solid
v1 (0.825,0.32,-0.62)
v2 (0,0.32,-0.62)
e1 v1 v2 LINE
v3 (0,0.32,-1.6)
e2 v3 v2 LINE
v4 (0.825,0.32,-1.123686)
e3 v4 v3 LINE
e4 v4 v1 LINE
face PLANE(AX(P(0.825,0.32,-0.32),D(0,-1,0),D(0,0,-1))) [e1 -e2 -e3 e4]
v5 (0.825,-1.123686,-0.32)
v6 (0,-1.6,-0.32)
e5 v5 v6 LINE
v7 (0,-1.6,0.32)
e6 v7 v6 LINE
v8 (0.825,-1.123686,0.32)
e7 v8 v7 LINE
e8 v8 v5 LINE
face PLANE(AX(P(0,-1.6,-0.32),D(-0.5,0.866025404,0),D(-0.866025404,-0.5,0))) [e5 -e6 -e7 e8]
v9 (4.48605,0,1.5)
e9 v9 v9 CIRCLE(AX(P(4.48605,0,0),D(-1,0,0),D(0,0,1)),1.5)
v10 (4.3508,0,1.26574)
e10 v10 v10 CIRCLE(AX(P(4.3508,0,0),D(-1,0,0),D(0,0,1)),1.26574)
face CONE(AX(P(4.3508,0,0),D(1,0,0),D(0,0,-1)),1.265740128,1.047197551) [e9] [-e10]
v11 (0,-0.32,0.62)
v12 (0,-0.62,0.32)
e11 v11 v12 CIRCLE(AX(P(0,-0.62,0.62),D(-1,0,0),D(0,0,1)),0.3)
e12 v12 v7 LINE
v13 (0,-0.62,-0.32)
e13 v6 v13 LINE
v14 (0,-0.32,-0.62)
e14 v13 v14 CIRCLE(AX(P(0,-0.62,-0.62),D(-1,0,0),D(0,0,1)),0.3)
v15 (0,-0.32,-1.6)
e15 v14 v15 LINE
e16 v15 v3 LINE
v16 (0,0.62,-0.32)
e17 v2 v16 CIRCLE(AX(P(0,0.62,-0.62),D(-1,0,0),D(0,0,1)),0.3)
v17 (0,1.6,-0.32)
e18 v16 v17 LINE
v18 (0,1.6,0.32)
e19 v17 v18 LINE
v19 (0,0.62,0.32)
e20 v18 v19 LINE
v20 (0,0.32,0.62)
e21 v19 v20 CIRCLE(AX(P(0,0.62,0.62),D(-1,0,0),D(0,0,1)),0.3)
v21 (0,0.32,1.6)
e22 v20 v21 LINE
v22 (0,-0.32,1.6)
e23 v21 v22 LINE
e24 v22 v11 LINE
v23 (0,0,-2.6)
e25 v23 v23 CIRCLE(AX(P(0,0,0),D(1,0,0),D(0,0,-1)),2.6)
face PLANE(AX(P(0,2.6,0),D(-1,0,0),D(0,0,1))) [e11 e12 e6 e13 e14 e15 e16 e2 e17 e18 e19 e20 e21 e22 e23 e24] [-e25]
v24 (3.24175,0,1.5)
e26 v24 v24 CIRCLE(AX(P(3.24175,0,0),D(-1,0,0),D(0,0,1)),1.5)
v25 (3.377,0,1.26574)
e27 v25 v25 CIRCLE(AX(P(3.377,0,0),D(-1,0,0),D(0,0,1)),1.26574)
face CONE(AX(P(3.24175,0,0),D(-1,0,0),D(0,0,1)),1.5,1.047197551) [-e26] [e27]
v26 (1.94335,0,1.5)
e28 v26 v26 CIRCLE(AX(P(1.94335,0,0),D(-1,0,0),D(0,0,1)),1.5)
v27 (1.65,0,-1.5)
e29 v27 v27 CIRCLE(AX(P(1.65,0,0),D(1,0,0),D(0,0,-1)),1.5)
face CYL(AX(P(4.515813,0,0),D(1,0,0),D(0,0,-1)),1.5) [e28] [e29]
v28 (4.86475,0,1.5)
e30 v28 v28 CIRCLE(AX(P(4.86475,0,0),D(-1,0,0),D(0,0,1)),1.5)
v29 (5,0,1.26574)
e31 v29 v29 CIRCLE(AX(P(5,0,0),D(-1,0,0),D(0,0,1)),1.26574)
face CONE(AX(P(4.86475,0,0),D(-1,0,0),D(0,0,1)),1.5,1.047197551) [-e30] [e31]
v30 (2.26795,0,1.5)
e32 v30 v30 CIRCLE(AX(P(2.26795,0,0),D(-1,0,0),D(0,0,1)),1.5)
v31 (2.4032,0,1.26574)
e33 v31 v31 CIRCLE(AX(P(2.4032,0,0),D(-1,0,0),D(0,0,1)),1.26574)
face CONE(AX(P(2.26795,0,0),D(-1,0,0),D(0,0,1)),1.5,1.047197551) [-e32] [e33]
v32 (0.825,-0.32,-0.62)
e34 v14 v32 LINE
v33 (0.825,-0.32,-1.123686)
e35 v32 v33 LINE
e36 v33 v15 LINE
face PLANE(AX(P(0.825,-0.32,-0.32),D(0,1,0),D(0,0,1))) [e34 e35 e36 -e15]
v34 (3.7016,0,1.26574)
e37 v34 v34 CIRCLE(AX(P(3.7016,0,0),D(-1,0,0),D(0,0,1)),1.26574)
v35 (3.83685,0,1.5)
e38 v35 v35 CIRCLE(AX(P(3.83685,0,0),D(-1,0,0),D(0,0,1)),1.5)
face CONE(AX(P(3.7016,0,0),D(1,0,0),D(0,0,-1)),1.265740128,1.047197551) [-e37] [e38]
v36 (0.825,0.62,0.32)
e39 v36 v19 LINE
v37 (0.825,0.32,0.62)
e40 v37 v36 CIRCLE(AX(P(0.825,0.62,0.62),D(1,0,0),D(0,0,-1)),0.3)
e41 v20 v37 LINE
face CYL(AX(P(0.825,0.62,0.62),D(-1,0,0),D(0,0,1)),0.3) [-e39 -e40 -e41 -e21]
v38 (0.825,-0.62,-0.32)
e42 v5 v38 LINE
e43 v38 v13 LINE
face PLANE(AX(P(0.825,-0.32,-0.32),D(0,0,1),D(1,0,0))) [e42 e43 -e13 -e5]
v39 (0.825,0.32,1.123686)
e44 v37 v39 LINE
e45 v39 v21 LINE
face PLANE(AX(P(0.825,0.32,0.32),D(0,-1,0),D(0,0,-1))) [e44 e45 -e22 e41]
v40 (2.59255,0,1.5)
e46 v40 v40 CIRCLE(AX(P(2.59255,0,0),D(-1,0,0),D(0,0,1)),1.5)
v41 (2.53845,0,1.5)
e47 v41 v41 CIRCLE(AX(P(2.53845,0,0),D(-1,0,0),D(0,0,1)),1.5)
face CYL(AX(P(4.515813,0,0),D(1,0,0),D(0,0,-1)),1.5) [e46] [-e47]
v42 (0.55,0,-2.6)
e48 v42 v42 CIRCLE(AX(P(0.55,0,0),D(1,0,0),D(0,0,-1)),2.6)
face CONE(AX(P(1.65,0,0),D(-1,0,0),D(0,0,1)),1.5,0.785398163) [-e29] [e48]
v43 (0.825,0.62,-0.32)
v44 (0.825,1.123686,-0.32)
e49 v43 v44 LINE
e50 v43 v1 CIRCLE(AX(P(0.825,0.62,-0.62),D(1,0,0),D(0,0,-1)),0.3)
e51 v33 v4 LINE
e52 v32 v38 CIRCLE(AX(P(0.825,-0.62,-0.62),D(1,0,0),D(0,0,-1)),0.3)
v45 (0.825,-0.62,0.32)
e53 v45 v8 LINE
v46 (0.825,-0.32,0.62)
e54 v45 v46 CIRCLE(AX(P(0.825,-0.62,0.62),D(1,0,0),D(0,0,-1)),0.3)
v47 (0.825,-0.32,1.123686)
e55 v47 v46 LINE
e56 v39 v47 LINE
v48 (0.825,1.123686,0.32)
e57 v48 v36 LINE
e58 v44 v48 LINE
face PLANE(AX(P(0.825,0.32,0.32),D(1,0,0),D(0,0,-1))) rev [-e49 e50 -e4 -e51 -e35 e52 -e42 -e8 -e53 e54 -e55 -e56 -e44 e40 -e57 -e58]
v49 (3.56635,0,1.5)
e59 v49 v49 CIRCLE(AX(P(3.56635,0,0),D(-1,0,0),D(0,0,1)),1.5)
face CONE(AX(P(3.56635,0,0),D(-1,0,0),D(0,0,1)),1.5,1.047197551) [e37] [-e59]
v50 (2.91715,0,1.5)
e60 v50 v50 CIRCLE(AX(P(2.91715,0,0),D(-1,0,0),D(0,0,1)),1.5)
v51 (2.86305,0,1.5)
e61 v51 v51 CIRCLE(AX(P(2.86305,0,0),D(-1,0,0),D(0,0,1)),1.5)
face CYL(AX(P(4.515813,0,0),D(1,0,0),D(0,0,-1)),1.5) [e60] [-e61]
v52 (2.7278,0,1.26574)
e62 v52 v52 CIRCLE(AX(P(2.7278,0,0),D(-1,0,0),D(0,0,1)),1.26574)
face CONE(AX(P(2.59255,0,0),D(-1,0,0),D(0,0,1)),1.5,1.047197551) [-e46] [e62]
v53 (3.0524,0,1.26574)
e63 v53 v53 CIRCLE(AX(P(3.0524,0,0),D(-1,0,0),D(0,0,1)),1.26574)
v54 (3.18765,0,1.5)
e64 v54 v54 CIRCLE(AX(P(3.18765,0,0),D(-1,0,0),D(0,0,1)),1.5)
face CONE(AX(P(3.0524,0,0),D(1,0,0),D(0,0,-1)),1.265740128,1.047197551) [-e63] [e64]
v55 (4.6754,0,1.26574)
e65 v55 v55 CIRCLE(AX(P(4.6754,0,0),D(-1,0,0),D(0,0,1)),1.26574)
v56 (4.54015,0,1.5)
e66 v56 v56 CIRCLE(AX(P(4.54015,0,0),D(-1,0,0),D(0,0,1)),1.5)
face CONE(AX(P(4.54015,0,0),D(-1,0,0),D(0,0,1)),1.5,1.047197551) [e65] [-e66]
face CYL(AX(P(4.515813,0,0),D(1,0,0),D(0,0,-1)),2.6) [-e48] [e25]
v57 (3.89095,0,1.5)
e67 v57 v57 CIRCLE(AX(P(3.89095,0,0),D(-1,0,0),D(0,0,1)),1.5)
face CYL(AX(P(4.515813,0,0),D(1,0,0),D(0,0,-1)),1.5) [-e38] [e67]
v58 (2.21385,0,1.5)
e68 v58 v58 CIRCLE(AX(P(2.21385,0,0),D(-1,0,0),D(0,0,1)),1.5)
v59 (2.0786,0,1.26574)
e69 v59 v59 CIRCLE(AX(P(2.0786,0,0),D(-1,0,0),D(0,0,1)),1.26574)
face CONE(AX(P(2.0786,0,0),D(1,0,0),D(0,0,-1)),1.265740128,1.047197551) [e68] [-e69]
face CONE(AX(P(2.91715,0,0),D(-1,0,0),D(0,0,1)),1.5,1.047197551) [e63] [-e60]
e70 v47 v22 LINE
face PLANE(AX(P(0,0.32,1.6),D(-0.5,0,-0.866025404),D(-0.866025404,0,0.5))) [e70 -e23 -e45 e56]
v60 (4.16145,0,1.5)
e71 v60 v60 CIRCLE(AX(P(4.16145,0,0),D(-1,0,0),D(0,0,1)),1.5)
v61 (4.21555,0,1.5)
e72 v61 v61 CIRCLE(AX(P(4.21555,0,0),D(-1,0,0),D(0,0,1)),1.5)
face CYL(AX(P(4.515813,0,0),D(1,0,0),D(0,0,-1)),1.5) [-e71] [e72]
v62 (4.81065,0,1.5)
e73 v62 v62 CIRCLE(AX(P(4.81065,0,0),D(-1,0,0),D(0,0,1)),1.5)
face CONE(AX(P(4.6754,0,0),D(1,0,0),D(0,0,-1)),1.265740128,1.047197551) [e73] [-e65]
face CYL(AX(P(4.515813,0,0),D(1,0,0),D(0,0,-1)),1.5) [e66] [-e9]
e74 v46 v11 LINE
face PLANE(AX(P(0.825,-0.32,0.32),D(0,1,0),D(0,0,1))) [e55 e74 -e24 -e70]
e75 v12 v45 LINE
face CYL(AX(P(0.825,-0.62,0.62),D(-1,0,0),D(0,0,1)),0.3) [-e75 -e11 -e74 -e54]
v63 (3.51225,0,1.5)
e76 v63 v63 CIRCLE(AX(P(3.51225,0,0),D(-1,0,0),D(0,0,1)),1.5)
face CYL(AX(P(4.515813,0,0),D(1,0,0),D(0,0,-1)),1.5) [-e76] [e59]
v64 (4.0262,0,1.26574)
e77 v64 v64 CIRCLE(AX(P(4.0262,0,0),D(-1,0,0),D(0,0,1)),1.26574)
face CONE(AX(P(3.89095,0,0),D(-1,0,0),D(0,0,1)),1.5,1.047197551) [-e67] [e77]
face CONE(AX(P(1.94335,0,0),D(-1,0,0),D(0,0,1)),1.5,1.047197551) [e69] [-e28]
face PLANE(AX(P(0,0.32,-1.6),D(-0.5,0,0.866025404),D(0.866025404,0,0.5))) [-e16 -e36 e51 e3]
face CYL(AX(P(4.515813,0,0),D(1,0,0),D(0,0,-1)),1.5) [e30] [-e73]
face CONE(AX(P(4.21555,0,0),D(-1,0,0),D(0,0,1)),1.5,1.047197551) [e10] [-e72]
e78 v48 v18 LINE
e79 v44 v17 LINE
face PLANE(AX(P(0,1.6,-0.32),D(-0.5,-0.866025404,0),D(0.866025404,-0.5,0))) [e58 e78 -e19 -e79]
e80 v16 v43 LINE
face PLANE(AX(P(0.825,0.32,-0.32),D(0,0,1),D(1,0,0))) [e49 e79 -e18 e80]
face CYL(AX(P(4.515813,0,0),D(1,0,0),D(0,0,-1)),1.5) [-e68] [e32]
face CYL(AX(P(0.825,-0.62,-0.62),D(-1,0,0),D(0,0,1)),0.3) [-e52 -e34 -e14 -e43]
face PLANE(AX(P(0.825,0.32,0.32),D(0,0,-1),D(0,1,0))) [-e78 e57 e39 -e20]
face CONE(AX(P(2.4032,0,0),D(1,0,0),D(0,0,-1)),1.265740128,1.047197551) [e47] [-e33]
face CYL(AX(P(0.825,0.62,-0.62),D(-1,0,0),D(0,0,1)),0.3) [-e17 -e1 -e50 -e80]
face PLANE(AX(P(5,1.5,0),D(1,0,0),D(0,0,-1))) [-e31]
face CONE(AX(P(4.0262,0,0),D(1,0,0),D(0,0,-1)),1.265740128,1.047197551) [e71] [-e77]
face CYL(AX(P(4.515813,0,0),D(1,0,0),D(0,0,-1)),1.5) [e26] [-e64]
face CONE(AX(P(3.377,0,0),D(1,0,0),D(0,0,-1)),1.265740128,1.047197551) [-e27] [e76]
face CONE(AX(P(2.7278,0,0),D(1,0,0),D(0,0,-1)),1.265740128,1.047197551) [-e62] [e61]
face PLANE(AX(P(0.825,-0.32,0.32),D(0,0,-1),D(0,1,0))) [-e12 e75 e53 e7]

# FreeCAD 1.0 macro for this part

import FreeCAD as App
import Part
import Sketcher

V = App.Vector
Q = App.Units.Quantity


def edges_at(feature, points):
    """Names of the edges that pass closest to the given points."""
    edges = feature.Shape.Edges
    near = lambda p: min(range(len(edges)), key=lambda i: edges[i].distToShape(Part.Vertex(*p))[0])
    return sorted({f"Edge{near(p) + 1}" for p in points})


def faces_at(feature, points):
    """Names of the faces that lie closest to the given points."""
    faces = feature.Shape.Faces
    near = lambda p: min(range(len(faces)), key=lambda i: faces[i].distToShape(Part.Vertex(*p))[0])
    return sorted({f"Face{near(p) + 1}" for p in points})


def add_polygon(sketch, points):
    """Adds a closed chain of lines whose ends are joined by coincident constraints."""
    first, n = sketch.GeometryCount, len(points)
    for a, b in zip(points, points[1:] + points[:1]):
        sketch.addGeometry(Part.LineSegment(App.Vector(*a, 0), App.Vector(*b, 0)), False)
    for i in range(n):
        sketch.addConstraint(Sketcher.Constraint("Coincident", first + i, 2, first + (i + 1) % n, 1))

doc = App.newDocument("Part")
body = doc.addObject("PartDesign::Body", "Body")

# Sketch on XY plane
sketch1 = body.newObject("Sketcher::SketchObject", "Sketch")
sketch1.AttachmentSupport = (doc.getObject("XY_Plane"), [""])
sketch1.MapMode = "FlatFace"
add_polygon(sketch1, [(5, 1.5), (1.6, 1.5), (0.6, 2.6), (0, 2.6), (0, 0), (5, 0)])  # lines 0-5
sketch1.addConstraint(Sketcher.Constraint("Horizontal", 0))
sketch1.addConstraint(Sketcher.Constraint("Horizontal", 2))
sketch1.addConstraint(Sketcher.Constraint("Vertical", 3))
sketch1.addConstraint(Sketcher.Constraint("Horizontal", 4))
sketch1.addConstraint(Sketcher.Constraint("Vertical", 5))
sketch1.addConstraint(Sketcher.Constraint("Coincident", 3, 2, -1, 1))
sketch1.addConstraint(Sketcher.Constraint("DistanceX", 4, 1, 4, 2, 5.0))
sketch1.addConstraint(Sketcher.Constraint("Angle", 1, Q("135 deg")))
sketch1.addConstraint(Sketcher.Constraint("DistanceY", 3, 2, 3, 1, 2.6))
sketch1.addConstraint(Sketcher.Constraint("DistanceY", 5, 1, 5, 2, 1.5))
sketch1.addConstraint(Sketcher.Constraint("DistanceX", 0, 2, 0, 1, 3.35))
revolution = body.newObject("PartDesign::Revolution", "Revolution")
revolution.Profile = sketch1
revolution.ReferenceAxis = (sketch1, ["H_Axis"])
revolution.Angle = 360

# Sketch on YZ plane
sketch2 = body.newObject("Sketcher::SketchObject", "Sketch001")
sketch2.AttachmentSupport = (doc.getObject("YZ_Plane"), [""])
sketch2.MapMode = "FlatFace"
add_polygon(sketch2, [(0.3, -0.3), (1.6, -0.3), (1.6, 0.3), (0.3, 0.3), (0.3, 1.6), (-0.3, 1.6), (-0.3, 0.3), (-1.6, 0.3), (-1.6, -0.3), (-0.3, -0.3), (-0.3, -1.6), (0.3, -1.6)])  # lines 0-11
sketch2.addConstraint(Sketcher.Constraint("Horizontal", 0))
sketch2.addConstraint(Sketcher.Constraint("Vertical", 1))
sketch2.addConstraint(Sketcher.Constraint("Horizontal", 2))
sketch2.addConstraint(Sketcher.Constraint("Vertical", 3))
sketch2.addConstraint(Sketcher.Constraint("Horizontal", 4))
sketch2.addConstraint(Sketcher.Constraint("Vertical", 5))
sketch2.addConstraint(Sketcher.Constraint("Horizontal", 6))
sketch2.addConstraint(Sketcher.Constraint("Vertical", 7))
sketch2.addConstraint(Sketcher.Constraint("Horizontal", 8))
sketch2.addConstraint(Sketcher.Constraint("Vertical", 9))
sketch2.addConstraint(Sketcher.Constraint("Horizontal", 10))
sketch2.addConstraint(Sketcher.Constraint("Vertical", 11))
sketch2.addConstraint(Sketcher.Constraint("Symmetric", 0, 2, 6, 2, -1, 1))
sketch2.addConstraint(Sketcher.Constraint("Symmetric", 2, 2, 8, 2, -1, 1))
sketch2.addConstraint(Sketcher.Constraint("Symmetric", 4, 2, 10, 2, -1, 1))
sketch2.addConstraint(Sketcher.Constraint("Symmetric", 2, 2, 5, 2, -2))
sketch2.addConstraint(Sketcher.Constraint("Equal", 10, 1))
sketch2.addConstraint(Sketcher.Constraint("Equal", 8, 3))
sketch2.addConstraint(Sketcher.Constraint("DistanceX", 0, 1, 0, 2, 1.28))
sketch2.addConstraint(Sketcher.Constraint("DistanceX", 4, 2, 4, 1, 0.64))
pocket1 = body.newObject("PartDesign::Pocket", "Pocket")
pocket1.Profile = sketch2
pocket1.Length = 0.825
pocket1.Reversed = True
doc.recompute()

draft = body.newObject("PartDesign::Draft", "Draft")
draft.Base = (pocket1, faces_at(pocket1, [
    (0.412, 1.6, 0),
    (0.412, 0, 1.6),
    (0.412, -1.6, 0),
    (0.412, 0, -1.6),
]))
draft.NeutralPlane = (doc.getObject("YZ_Plane"), [""])
draft.Angle = 30
draft.Reversed = True
doc.recompute()

fillet = body.newObject("PartDesign::Fillet", "Fillet")
fillet.Base = (draft, edges_at(draft, [
    (0.412, 0.32, 0.32),
    (0.412, -0.32, 0.32),
    (0.412, -0.32, -0.32),
    (0.412, 0.32, -0.32),
]))
fillet.Radius = 0.3

# Sketch on XY plane
sketch3 = body.newObject("Sketcher::SketchObject", "Sketch002")
sketch3.AttachmentSupport = (doc.getObject("XY_Plane"), [""])
sketch3.MapMode = "FlatFace"
add_polygon(sketch3, [(5, 1.27), (5.14, 1.5), (5.14, 1.77), (4.86, 1.77), (4.86, 1.5)])  # lines 0-4
sketch3.addConstraint(Sketcher.Constraint("Vertical", 1))
sketch3.addConstraint(Sketcher.Constraint("Horizontal", 2))
sketch3.addConstraint(Sketcher.Constraint("Vertical", 3))
sketch3.addConstraint(Sketcher.Constraint("Horizontal", 0, 2, 3, 2))
sketch3.addConstraint(Sketcher.Constraint("Equal", 2, 1))
sketch3.addConstraint(Sketcher.Constraint("Equal", 0, 4))
sketch3.addConstraint(Sketcher.Constraint("Angle", 0, Q("60 deg")))
sketch3.addConstraint(Sketcher.Constraint("DistanceX", -1, 1, 4, 2, 5.0))
sketch3.addConstraint(Sketcher.Constraint("DistanceY", -1, 1, 0, 2, 1.5))
sketch3.addConstraint(Sketcher.Constraint("DistanceX", 2, 2, 2, 1, 0.2705))
groove = body.newObject("PartDesign::Groove", "Groove")
groove.Profile = sketch3
groove.ReferenceAxis = (sketch3, ["H_Axis"])
groove.Angle = 360
doc.recompute()

linearpattern = body.newObject("PartDesign::LinearPattern", "LinearPattern")
linearpattern.Originals = [groove]
linearpattern.Direction = (doc.getObject("X_Axis"), [""])
linearpattern.Mode = "offset"
linearpattern.Offset = 0.3246
linearpattern.Occurrences = 10
linearpattern.Reversed = True
body.Tip = linearpattern

doc.recompute()
